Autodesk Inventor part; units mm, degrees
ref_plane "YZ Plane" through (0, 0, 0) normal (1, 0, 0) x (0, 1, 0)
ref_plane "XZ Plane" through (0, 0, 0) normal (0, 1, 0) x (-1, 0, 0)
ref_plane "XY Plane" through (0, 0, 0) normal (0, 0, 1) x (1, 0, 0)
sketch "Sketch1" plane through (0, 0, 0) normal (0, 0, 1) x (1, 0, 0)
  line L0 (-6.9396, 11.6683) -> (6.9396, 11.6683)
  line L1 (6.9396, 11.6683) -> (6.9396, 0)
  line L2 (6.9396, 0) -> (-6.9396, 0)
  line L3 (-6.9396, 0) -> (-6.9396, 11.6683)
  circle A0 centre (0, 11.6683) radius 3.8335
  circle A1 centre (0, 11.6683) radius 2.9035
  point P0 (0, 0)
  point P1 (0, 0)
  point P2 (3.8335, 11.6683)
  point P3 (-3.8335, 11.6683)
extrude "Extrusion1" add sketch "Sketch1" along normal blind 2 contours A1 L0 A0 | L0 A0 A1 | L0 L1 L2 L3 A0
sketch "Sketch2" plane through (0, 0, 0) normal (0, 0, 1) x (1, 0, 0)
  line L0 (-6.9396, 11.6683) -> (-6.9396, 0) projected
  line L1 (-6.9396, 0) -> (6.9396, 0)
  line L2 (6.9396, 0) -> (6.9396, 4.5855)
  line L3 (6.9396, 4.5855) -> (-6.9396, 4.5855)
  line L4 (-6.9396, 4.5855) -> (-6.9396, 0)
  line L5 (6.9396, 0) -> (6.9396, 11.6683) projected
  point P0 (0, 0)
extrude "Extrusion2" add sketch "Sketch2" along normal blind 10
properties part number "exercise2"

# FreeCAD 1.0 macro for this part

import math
import FreeCAD as App
import Part
import Sketcher

V = App.Vector
Q = App.Units.Quantity

doc = App.newDocument("Part")
body = doc.addObject("PartDesign::Body", "Body")

# Sketch on XY plane
sketch1 = body.newObject("Sketcher::SketchObject", "Sketch")
sketch1.AttachmentSupport = (doc.getObject("XY_Plane"), [""])
sketch1.MapMode = "FlatFace"
sketch1.addGeometry([
    Part.ArcOfCircle(Part.Circle(V(0, 11.7, 0), V(0, 0, 1), 3.8), math.radians(0), math.radians(180)),  # 0
    Part.LineSegment(V(-3.8, 11.7, 0), V(-6.9, 11.7, 0)),  # 1
    Part.LineSegment(V(-6.9, 11.7, 0), V(-6.9, 0, 0)),  # 2
    Part.LineSegment(V(-6.9, 0, 0), V(6.9, 0, 0)),  # 3
    Part.LineSegment(V(6.9, 0, 0), V(6.9, 11.7, 0)),  # 4
    Part.LineSegment(V(6.9, 11.7, 0), V(3.8, 11.7, 0)),  # 5
    Part.Circle(V(0, 11.7, 0), V(0, 0, 1), 2.9),  # 6
], False)
sketch1.addConstraint([
    Sketcher.Constraint("Coincident", 0, 2, 1, 1),
    Sketcher.Constraint("Coincident", 1, 2, 2, 1),
    Sketcher.Constraint("Coincident", 2, 2, 3, 1),
    Sketcher.Constraint("Coincident", 3, 2, 4, 1),
    Sketcher.Constraint("Coincident", 4, 2, 5, 1),
    Sketcher.Constraint("Coincident", 5, 2, 0, 1),
    Sketcher.Constraint("Horizontal", 1),
    Sketcher.Constraint("Vertical", 2),
    Sketcher.Constraint("Horizontal", 3),
    Sketcher.Constraint("Vertical", 4),
    Sketcher.Constraint("Horizontal", 5),
    Sketcher.Constraint("Coincident", 6, 3, 0, 3),
    Sketcher.Constraint("Symmetric", 2, 2, 3, 2, -1, 1),
    Sketcher.Constraint("Symmetric", 0, 2, 5, 2, -2),
    Sketcher.Constraint("Horizontal", 6, 3, 0, 2),
    Sketcher.Constraint("Diameter", 6, Q("5.807 mm")),
    Sketcher.Constraint("Radius", 0, Q("3.8335 mm")),
    Sketcher.Constraint("DistanceX", 1, 2, 1, 1, Q("3.106 mm")),
    Sketcher.Constraint("DistanceY", 2, 2, 2, 1, Q("11.6683 mm")),
])
pad1 = body.newObject("PartDesign::Pad", "Pad")
pad1.Profile = sketch1
pad1.Length = 2

# Sketch on XY plane
sketch2 = body.newObject("Sketcher::SketchObject", "Sketch001")
sketch2.AttachmentSupport = (doc.getObject("XY_Plane"), [""])
sketch2.MapMode = "FlatFace"
sketch2.addGeometry([
    Part.LineSegment(V(6.9, 4.6, 0), V(-6.9, 4.6, 0)),
    Part.LineSegment(V(-6.9, 4.6, 0), V(-6.9, 0, 0)),
    Part.LineSegment(V(-6.9, 0, 0), V(6.9, 0, 0)),
    Part.LineSegment(V(6.9, 0, 0), V(6.9, 4.6, 0)),
], False)
sketch2.addConstraint([
    Sketcher.Constraint("Coincident", 0, 2, 1, 1),
    Sketcher.Constraint("Coincident", 1, 2, 2, 1),
    Sketcher.Constraint("Coincident", 2, 2, 3, 1),
    Sketcher.Constraint("Coincident", 3, 2, 0, 1),
    Sketcher.Constraint("Horizontal", 0),
    Sketcher.Constraint("Vertical", 1),
    Sketcher.Constraint("Horizontal", 2),
    Sketcher.Constraint("Vertical", 3),
    Sketcher.Constraint("Symmetric", 1, 2, 2, 2, -1, 1),
    Sketcher.Constraint("DistanceX", 0, 2, 0, 1, Q("13.8792 mm")),
    Sketcher.Constraint("DistanceY", 1, 2, 1, 1, Q("4.5855 mm")),
])
pad2 = body.newObject("PartDesign::Pad", "Pad001")
pad2.Profile = sketch2
pad2.Length = 10

doc.recompute()
